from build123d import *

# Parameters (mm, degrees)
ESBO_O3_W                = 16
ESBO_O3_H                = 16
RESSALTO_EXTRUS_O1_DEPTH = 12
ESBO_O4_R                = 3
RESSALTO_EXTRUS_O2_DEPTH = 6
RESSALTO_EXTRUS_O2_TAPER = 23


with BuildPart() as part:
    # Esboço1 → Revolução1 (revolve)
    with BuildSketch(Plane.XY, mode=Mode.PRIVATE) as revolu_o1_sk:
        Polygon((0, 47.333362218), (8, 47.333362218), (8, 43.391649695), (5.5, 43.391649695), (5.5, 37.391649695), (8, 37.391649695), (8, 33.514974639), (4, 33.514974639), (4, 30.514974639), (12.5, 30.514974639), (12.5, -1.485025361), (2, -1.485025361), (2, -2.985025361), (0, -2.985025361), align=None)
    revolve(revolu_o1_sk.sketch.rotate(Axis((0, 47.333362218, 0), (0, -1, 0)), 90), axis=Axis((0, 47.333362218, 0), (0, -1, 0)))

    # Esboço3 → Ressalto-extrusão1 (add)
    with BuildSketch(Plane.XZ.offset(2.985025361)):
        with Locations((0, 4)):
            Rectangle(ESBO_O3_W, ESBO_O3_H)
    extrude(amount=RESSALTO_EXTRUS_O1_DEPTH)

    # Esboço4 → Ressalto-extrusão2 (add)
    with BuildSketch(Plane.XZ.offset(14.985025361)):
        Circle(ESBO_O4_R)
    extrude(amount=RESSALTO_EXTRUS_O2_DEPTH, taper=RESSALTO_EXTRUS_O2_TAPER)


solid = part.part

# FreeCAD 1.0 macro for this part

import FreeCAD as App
import Part
import Sketcher

V = App.Vector

doc = App.newDocument("Part")
params = doc.addObject("Spreadsheet::Sheet", "Params")
for row, (alias, value) in enumerate([
    ("sketch1_width", "8 mm"),
    ("sketch1_width2", "2 mm"),
    ("sketch1_width3", "4 mm"),
    ("sketch1_height", "32 mm"),
    ("sketch1_height2", "3 mm"),
    ("revolution_angle", "360 deg"),
    ("sketch2_width", "16 mm"),
    ("pad1_length", "12 mm"),
    ("sketch3_diameter", "6 mm"),
    ("pad2_length", "6 mm"),
    ("pad2_taper", "-23 deg"),
], start=1):
    params.set(f"A{row}", alias)
    params.set(f"B{row}", "=" + value)
    params.setAlias(f"B{row}", alias)

body = doc.addObject("PartDesign::Body", "Body")

# Sketch on XY plane
sketch1 = body.newObject("Sketcher::SketchObject", "Sketch")
sketch1.AttachmentSupport = (doc.getObject("XY_Plane"), [""])
sketch1.MapMode = "FlatFace"
sketch1.addGeometry([
    Part.LineSegment(V(8, 47.333362, 0), V(0, 47.333362, 0)),  # 0
    Part.LineSegment(V(0, 47.333362, 0), V(0, -2.985025, 0)),  # 1
    Part.LineSegment(V(0, -2.985025, 0), V(2, -2.985025, 0)),  # 2
    Part.LineSegment(V(2, -2.985025, 0), V(2, -1.485025, 0)),  # 3
    Part.LineSegment(V(2, -1.485025, 0), V(12.5, -1.485025, 0)),  # 4
    Part.LineSegment(V(12.5, -1.485025, 0), V(12.5, 30.514975, 0)),  # 5
    Part.LineSegment(V(12.5, 30.514975, 0), V(4, 30.514975, 0)),  # 6
    Part.LineSegment(V(4, 30.514975, 0), V(4, 33.514975, 0)),  # 7
    Part.LineSegment(V(4, 33.514975, 0), V(8, 33.514975, 0)),  # 8
    Part.LineSegment(V(8, 33.514975, 0), V(8, 37.39165, 0)),  # 9
    Part.LineSegment(V(8, 37.39165, 0), V(5.5, 37.39165, 0)),  # 10
    Part.LineSegment(V(5.5, 37.39165, 0), V(5.5, 43.39165, 0)),  # 11
    Part.LineSegment(V(5.5, 43.39165, 0), V(8, 43.39165, 0)),  # 12
    Part.LineSegment(V(8, 43.39165, 0), V(8, 47.333362, 0)),  # 13
], False)
sketch1.addConstraint([
    Sketcher.Constraint("Coincident", 0, 2, 1, 1),
    Sketcher.Constraint("Coincident", 1, 2, 2, 1),
    Sketcher.Constraint("Coincident", 2, 2, 3, 1),
    Sketcher.Constraint("Coincident", 3, 2, 4, 1),
    Sketcher.Constraint("Coincident", 4, 2, 5, 1),
    Sketcher.Constraint("Coincident", 5, 2, 6, 1),
    Sketcher.Constraint("Coincident", 6, 2, 7, 1),
    Sketcher.Constraint("Coincident", 7, 2, 8, 1),
    Sketcher.Constraint("Coincident", 8, 2, 9, 1),
    Sketcher.Constraint("Coincident", 9, 2, 10, 1),
    Sketcher.Constraint("Coincident", 10, 2, 11, 1),
    Sketcher.Constraint("Coincident", 11, 2, 12, 1),
    Sketcher.Constraint("Coincident", 12, 2, 13, 1),
    Sketcher.Constraint("Coincident", 13, 2, 0, 1),
    Sketcher.Constraint("Horizontal", 0),
    Sketcher.Constraint("Vertical", 1),
    Sketcher.Constraint("Horizontal", 2),
    Sketcher.Constraint("Vertical", 3),
    Sketcher.Constraint("Horizontal", 4),
    Sketcher.Constraint("Vertical", 5),
    Sketcher.Constraint("Horizontal", 6),
    Sketcher.Constraint("Vertical", 7),
    Sketcher.Constraint("Horizontal", 8),
    Sketcher.Constraint("Vertical", 9),
    Sketcher.Constraint("Horizontal", 10),
    Sketcher.Constraint("Vertical", 11),
    Sketcher.Constraint("Horizontal", 12),
    Sketcher.Constraint("Vertical", 13),
    Sketcher.Constraint("PointOnObject", 0, 2, -2),
    Sketcher.Constraint("Vertical", 9, 2, 12, 2),
    Sketcher.Constraint("DistanceX", 0, 2, 0, 1, 8.0),
    Sketcher.Constraint("DistanceX", 2, 1, 2, 2, 2.0),
    Sketcher.Constraint("DistanceX", 8, 1, 8, 2, 4.0),
    Sketcher.Constraint("DistanceY", 5, 1, 5, 2, 32.0),
    Sketcher.Constraint("DistanceY", 7, 1, 7, 2, 3.0),
    Sketcher.Constraint("DistanceY", 11, 1, 11, 2, 6.0),
    Sketcher.Constraint("DistanceX", 4, 1, 4, 2, 10.5),
    Sketcher.Constraint("DistanceX", 10, 2, 10, 1, 2.5),
    Sketcher.Constraint("DistanceY", 3, 1, 3, 2, 1.5),
    Sketcher.Constraint("DistanceY", 1, 2, 1, 1, 50.318388),
    Sketcher.Constraint("DistanceY", 9, 1, 9, 2, 3.876675),
    Sketcher.Constraint("DistanceY", -1, 1, 9, 2, 37.39165),
])
sketch1.setExpression("Constraints[30]", "Params.sketch1_width")
sketch1.setExpression("Constraints[31]", "Params.sketch1_width2")
sketch1.setExpression("Constraints[32]", "Params.sketch1_width3")
sketch1.setExpression("Constraints[33]", "Params.sketch1_height")
sketch1.setExpression("Constraints[34]", "Params.sketch1_height2")
revolution = body.newObject("PartDesign::Revolution", "Revolution")
revolution.Profile = sketch1
revolution.ReferenceAxis = (sketch1, ["V_Axis"])
revolution.setExpression("Angle", "Params.revolution_angle")

# Sketch on XZ plane
sketch2 = body.newObject("Sketcher::SketchObject", "Sketch001")
sketch2.AttachmentSupport = (doc.getObject("XZ_Plane"), [""])
sketch2.MapMode = "FlatFace"
sketch2.AttachmentOffset = App.Placement(V(0, 0, 2.985025), App.Rotation())
sketch2.addGeometry([
    Part.LineSegment(V(-8, 12, 0), V(-8, -4, 0)),
    Part.LineSegment(V(-8, -4, 0), V(8, -4, 0)),
    Part.LineSegment(V(8, -4, 0), V(8, 12, 0)),
    Part.LineSegment(V(8, 12, 0), V(-8, 12, 0)),
], False)
sketch2.addConstraint([
    Sketcher.Constraint("Coincident", 0, 2, 1, 1),
    Sketcher.Constraint("Coincident", 1, 2, 2, 1),
    Sketcher.Constraint("Coincident", 2, 2, 3, 1),
    Sketcher.Constraint("Coincident", 3, 2, 0, 1),
    Sketcher.Constraint("Vertical", 0),
    Sketcher.Constraint("Horizontal", 1),
    Sketcher.Constraint("Vertical", 2),
    Sketcher.Constraint("Horizontal", 3),
    Sketcher.Constraint("Equal", 3, 0),
    Sketcher.Constraint("DistanceX", 1, 1, 1, 2, 16.0),
    Sketcher.Constraint("DistanceX", 0, 2, -1, 1, 8.0),
    Sketcher.Constraint("DistanceY", 0, 2, -1, 1, 4.0),
])
sketch2.setExpression("Constraints[9]", "Params.sketch2_width")
pad1 = body.newObject("PartDesign::Pad", "Pad")
pad1.Profile = sketch2
pad1.setExpression("Length", "Params.pad1_length")

# Sketch on XZ plane
sketch3 = body.newObject("Sketcher::SketchObject", "Sketch002")
sketch3.AttachmentSupport = (doc.getObject("XZ_Plane"), [""])
sketch3.MapMode = "FlatFace"
sketch3.AttachmentOffset = App.Placement(V(0, 0, 14.985025), App.Rotation())
sketch3.addGeometry(Part.Circle(V(0, 0, 0), V(0, 0, 1), 3), False)
sketch3.addConstraint([
    Sketcher.Constraint("Coincident", 0, 3, -1, 1),
    Sketcher.Constraint("Diameter", 0, 6.0),
])
sketch3.setExpression("Constraints[1]", "Params.sketch3_diameter")
pad2 = body.newObject("PartDesign::Pad", "Pad001")
pad2.Profile = sketch3
pad2.setExpression("Length", "Params.pad2_length")
pad2.setExpression("TaperAngle", "Params.pad2_taper")

doc.recompute()
